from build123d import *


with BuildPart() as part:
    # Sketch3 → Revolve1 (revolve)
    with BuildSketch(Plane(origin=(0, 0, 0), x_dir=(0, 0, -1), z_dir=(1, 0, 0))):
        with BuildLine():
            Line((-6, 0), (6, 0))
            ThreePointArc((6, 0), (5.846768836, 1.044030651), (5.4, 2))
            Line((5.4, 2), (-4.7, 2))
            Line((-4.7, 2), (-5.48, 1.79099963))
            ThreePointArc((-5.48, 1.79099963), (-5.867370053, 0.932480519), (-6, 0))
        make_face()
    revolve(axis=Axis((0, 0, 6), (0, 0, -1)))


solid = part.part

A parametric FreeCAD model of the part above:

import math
import FreeCAD as App
import Part
import Sketcher
from FreeCAD import Vector
Q = App.Units.Quantity

doc = App.newDocument("Part")
body = doc.addObject("PartDesign::Body", "Body")

sketch1 = body.newObject("Sketcher::SketchObject", "Sketch")
sketch1.AttachmentSupport = (doc.getObject("YZ_Plane"), [""])
sketch1.MapMode = "FlatFace"
sketch1.addGeometry([
    Part.LineSegment(Vector(0, 6, 0), Vector(0, -6, 0)),
    Part.ArcOfCircle(Part.Circle(Vector(0, -2.4, 0), Vector(0, 0, 1), 3.6), math.radians(-90), math.radians(-57)),
    Part.LineSegment(Vector(2, -5.4, 0), Vector(2, 4.7, 0)),
    Part.LineSegment(Vector(2, 4.7, 0), Vector(1.8, 5.5, 0)),
    Part.ArcOfCircle(Part.Circle(Vector(0, 2.7, 0), Vector(0, 0, 1), 3.3), math.radians(58), math.radians(90)),
], False)
sketch1.addConstraint([
    Sketcher.Constraint("Coincident", 0, 2, 1, 1),
    Sketcher.Constraint("Coincident", 1, 2, 2, 1),
    Sketcher.Constraint("Coincident", 2, 2, 3, 1),
    Sketcher.Constraint("Coincident", 3, 2, 4, 1),
    Sketcher.Constraint("Coincident", 4, 2, 0, 1),
    Sketcher.Constraint("Vertical", 0),
    Sketcher.Constraint("Vertical", 2),
    Sketcher.Constraint("Symmetric", 0, 2, 4, 2, -1, 1),
    Sketcher.Constraint("PointOnObject", 1, 3, -2),
    Sketcher.Constraint("PointOnObject", 4, 3, -2),
    Sketcher.Constraint("DistanceY", 0, 2, 0, 1, 12.0),
    Sketcher.Constraint("Angle", 3, Q("105 deg")),
    Sketcher.Constraint("DistanceY", 2, 1, 2, 2, 10.1),
    Sketcher.Constraint("DistanceX", -1, 1, 1, 2, 2.0),
    Sketcher.Constraint("DistanceY", 1, 2, -1, 1, 5.4),
    Sketcher.Constraint("DistanceY", -1, 1, 3, 2, 5.48),
])
revolution = body.newObject("PartDesign::Revolution", "Revolution")
revolution.Profile = sketch1
revolution.ReferenceAxis = (sketch1, ["V_Axis"])
revolution.Angle = 360

doc.recompute()
